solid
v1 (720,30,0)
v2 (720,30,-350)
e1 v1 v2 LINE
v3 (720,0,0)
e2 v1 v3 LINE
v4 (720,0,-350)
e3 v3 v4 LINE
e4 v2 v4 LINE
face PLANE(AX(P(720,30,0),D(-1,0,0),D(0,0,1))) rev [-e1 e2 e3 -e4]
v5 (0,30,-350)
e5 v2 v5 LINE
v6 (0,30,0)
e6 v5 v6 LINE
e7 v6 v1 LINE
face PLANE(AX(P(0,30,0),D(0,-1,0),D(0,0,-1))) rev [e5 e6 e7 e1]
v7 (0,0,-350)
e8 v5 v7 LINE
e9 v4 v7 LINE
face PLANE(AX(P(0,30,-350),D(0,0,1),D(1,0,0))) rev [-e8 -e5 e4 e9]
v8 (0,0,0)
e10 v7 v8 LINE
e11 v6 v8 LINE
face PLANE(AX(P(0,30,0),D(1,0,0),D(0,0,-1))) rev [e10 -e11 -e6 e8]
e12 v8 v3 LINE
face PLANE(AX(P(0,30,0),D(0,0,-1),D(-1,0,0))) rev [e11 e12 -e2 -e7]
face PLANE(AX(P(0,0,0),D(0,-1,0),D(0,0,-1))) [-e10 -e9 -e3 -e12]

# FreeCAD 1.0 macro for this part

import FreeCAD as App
import Part
import Sketcher

V = App.Vector

doc = App.newDocument("Part")
body = doc.addObject("PartDesign::Body", "Body")

# Sketch on XZ plane
sketch1 = body.newObject("Sketcher::SketchObject", "Sketch")
sketch1.AttachmentSupport = (doc.getObject("XZ_Plane"), [""])
sketch1.MapMode = "FlatFace"
sketch1.addGeometry([
    Part.LineSegment(V(0, -350, 0), V(0, 0, 0)),
    Part.LineSegment(V(0, 0, 0), V(720, 0, 0)),
    Part.LineSegment(V(720, 0, 0), V(720, -350, 0)),
    Part.LineSegment(V(720, -350, 0), V(0, -350, 0)),
], False)
sketch1.addConstraint([
    Sketcher.Constraint("Coincident", 0, 2, 1, 1),
    Sketcher.Constraint("Coincident", 1, 2, 2, 1),
    Sketcher.Constraint("Coincident", 2, 2, 3, 1),
    Sketcher.Constraint("Coincident", 3, 2, 0, 1),
    Sketcher.Constraint("Vertical", 0),
    Sketcher.Constraint("Horizontal", 1),
    Sketcher.Constraint("Vertical", 2),
    Sketcher.Constraint("Horizontal", 3),
    Sketcher.Constraint("Coincident", 0, 2, -1, 1),
    Sketcher.Constraint("DistanceX", 1, 1, 1, 2, 720.0),
    Sketcher.Constraint("DistanceY", 0, 1, 0, 2, 350.0),
])
pad1 = body.newObject("PartDesign::Pad", "Pad")
pad1.Profile = sketch1
pad1.Length = 30
pad1.Reversed = True

doc.recompute()
